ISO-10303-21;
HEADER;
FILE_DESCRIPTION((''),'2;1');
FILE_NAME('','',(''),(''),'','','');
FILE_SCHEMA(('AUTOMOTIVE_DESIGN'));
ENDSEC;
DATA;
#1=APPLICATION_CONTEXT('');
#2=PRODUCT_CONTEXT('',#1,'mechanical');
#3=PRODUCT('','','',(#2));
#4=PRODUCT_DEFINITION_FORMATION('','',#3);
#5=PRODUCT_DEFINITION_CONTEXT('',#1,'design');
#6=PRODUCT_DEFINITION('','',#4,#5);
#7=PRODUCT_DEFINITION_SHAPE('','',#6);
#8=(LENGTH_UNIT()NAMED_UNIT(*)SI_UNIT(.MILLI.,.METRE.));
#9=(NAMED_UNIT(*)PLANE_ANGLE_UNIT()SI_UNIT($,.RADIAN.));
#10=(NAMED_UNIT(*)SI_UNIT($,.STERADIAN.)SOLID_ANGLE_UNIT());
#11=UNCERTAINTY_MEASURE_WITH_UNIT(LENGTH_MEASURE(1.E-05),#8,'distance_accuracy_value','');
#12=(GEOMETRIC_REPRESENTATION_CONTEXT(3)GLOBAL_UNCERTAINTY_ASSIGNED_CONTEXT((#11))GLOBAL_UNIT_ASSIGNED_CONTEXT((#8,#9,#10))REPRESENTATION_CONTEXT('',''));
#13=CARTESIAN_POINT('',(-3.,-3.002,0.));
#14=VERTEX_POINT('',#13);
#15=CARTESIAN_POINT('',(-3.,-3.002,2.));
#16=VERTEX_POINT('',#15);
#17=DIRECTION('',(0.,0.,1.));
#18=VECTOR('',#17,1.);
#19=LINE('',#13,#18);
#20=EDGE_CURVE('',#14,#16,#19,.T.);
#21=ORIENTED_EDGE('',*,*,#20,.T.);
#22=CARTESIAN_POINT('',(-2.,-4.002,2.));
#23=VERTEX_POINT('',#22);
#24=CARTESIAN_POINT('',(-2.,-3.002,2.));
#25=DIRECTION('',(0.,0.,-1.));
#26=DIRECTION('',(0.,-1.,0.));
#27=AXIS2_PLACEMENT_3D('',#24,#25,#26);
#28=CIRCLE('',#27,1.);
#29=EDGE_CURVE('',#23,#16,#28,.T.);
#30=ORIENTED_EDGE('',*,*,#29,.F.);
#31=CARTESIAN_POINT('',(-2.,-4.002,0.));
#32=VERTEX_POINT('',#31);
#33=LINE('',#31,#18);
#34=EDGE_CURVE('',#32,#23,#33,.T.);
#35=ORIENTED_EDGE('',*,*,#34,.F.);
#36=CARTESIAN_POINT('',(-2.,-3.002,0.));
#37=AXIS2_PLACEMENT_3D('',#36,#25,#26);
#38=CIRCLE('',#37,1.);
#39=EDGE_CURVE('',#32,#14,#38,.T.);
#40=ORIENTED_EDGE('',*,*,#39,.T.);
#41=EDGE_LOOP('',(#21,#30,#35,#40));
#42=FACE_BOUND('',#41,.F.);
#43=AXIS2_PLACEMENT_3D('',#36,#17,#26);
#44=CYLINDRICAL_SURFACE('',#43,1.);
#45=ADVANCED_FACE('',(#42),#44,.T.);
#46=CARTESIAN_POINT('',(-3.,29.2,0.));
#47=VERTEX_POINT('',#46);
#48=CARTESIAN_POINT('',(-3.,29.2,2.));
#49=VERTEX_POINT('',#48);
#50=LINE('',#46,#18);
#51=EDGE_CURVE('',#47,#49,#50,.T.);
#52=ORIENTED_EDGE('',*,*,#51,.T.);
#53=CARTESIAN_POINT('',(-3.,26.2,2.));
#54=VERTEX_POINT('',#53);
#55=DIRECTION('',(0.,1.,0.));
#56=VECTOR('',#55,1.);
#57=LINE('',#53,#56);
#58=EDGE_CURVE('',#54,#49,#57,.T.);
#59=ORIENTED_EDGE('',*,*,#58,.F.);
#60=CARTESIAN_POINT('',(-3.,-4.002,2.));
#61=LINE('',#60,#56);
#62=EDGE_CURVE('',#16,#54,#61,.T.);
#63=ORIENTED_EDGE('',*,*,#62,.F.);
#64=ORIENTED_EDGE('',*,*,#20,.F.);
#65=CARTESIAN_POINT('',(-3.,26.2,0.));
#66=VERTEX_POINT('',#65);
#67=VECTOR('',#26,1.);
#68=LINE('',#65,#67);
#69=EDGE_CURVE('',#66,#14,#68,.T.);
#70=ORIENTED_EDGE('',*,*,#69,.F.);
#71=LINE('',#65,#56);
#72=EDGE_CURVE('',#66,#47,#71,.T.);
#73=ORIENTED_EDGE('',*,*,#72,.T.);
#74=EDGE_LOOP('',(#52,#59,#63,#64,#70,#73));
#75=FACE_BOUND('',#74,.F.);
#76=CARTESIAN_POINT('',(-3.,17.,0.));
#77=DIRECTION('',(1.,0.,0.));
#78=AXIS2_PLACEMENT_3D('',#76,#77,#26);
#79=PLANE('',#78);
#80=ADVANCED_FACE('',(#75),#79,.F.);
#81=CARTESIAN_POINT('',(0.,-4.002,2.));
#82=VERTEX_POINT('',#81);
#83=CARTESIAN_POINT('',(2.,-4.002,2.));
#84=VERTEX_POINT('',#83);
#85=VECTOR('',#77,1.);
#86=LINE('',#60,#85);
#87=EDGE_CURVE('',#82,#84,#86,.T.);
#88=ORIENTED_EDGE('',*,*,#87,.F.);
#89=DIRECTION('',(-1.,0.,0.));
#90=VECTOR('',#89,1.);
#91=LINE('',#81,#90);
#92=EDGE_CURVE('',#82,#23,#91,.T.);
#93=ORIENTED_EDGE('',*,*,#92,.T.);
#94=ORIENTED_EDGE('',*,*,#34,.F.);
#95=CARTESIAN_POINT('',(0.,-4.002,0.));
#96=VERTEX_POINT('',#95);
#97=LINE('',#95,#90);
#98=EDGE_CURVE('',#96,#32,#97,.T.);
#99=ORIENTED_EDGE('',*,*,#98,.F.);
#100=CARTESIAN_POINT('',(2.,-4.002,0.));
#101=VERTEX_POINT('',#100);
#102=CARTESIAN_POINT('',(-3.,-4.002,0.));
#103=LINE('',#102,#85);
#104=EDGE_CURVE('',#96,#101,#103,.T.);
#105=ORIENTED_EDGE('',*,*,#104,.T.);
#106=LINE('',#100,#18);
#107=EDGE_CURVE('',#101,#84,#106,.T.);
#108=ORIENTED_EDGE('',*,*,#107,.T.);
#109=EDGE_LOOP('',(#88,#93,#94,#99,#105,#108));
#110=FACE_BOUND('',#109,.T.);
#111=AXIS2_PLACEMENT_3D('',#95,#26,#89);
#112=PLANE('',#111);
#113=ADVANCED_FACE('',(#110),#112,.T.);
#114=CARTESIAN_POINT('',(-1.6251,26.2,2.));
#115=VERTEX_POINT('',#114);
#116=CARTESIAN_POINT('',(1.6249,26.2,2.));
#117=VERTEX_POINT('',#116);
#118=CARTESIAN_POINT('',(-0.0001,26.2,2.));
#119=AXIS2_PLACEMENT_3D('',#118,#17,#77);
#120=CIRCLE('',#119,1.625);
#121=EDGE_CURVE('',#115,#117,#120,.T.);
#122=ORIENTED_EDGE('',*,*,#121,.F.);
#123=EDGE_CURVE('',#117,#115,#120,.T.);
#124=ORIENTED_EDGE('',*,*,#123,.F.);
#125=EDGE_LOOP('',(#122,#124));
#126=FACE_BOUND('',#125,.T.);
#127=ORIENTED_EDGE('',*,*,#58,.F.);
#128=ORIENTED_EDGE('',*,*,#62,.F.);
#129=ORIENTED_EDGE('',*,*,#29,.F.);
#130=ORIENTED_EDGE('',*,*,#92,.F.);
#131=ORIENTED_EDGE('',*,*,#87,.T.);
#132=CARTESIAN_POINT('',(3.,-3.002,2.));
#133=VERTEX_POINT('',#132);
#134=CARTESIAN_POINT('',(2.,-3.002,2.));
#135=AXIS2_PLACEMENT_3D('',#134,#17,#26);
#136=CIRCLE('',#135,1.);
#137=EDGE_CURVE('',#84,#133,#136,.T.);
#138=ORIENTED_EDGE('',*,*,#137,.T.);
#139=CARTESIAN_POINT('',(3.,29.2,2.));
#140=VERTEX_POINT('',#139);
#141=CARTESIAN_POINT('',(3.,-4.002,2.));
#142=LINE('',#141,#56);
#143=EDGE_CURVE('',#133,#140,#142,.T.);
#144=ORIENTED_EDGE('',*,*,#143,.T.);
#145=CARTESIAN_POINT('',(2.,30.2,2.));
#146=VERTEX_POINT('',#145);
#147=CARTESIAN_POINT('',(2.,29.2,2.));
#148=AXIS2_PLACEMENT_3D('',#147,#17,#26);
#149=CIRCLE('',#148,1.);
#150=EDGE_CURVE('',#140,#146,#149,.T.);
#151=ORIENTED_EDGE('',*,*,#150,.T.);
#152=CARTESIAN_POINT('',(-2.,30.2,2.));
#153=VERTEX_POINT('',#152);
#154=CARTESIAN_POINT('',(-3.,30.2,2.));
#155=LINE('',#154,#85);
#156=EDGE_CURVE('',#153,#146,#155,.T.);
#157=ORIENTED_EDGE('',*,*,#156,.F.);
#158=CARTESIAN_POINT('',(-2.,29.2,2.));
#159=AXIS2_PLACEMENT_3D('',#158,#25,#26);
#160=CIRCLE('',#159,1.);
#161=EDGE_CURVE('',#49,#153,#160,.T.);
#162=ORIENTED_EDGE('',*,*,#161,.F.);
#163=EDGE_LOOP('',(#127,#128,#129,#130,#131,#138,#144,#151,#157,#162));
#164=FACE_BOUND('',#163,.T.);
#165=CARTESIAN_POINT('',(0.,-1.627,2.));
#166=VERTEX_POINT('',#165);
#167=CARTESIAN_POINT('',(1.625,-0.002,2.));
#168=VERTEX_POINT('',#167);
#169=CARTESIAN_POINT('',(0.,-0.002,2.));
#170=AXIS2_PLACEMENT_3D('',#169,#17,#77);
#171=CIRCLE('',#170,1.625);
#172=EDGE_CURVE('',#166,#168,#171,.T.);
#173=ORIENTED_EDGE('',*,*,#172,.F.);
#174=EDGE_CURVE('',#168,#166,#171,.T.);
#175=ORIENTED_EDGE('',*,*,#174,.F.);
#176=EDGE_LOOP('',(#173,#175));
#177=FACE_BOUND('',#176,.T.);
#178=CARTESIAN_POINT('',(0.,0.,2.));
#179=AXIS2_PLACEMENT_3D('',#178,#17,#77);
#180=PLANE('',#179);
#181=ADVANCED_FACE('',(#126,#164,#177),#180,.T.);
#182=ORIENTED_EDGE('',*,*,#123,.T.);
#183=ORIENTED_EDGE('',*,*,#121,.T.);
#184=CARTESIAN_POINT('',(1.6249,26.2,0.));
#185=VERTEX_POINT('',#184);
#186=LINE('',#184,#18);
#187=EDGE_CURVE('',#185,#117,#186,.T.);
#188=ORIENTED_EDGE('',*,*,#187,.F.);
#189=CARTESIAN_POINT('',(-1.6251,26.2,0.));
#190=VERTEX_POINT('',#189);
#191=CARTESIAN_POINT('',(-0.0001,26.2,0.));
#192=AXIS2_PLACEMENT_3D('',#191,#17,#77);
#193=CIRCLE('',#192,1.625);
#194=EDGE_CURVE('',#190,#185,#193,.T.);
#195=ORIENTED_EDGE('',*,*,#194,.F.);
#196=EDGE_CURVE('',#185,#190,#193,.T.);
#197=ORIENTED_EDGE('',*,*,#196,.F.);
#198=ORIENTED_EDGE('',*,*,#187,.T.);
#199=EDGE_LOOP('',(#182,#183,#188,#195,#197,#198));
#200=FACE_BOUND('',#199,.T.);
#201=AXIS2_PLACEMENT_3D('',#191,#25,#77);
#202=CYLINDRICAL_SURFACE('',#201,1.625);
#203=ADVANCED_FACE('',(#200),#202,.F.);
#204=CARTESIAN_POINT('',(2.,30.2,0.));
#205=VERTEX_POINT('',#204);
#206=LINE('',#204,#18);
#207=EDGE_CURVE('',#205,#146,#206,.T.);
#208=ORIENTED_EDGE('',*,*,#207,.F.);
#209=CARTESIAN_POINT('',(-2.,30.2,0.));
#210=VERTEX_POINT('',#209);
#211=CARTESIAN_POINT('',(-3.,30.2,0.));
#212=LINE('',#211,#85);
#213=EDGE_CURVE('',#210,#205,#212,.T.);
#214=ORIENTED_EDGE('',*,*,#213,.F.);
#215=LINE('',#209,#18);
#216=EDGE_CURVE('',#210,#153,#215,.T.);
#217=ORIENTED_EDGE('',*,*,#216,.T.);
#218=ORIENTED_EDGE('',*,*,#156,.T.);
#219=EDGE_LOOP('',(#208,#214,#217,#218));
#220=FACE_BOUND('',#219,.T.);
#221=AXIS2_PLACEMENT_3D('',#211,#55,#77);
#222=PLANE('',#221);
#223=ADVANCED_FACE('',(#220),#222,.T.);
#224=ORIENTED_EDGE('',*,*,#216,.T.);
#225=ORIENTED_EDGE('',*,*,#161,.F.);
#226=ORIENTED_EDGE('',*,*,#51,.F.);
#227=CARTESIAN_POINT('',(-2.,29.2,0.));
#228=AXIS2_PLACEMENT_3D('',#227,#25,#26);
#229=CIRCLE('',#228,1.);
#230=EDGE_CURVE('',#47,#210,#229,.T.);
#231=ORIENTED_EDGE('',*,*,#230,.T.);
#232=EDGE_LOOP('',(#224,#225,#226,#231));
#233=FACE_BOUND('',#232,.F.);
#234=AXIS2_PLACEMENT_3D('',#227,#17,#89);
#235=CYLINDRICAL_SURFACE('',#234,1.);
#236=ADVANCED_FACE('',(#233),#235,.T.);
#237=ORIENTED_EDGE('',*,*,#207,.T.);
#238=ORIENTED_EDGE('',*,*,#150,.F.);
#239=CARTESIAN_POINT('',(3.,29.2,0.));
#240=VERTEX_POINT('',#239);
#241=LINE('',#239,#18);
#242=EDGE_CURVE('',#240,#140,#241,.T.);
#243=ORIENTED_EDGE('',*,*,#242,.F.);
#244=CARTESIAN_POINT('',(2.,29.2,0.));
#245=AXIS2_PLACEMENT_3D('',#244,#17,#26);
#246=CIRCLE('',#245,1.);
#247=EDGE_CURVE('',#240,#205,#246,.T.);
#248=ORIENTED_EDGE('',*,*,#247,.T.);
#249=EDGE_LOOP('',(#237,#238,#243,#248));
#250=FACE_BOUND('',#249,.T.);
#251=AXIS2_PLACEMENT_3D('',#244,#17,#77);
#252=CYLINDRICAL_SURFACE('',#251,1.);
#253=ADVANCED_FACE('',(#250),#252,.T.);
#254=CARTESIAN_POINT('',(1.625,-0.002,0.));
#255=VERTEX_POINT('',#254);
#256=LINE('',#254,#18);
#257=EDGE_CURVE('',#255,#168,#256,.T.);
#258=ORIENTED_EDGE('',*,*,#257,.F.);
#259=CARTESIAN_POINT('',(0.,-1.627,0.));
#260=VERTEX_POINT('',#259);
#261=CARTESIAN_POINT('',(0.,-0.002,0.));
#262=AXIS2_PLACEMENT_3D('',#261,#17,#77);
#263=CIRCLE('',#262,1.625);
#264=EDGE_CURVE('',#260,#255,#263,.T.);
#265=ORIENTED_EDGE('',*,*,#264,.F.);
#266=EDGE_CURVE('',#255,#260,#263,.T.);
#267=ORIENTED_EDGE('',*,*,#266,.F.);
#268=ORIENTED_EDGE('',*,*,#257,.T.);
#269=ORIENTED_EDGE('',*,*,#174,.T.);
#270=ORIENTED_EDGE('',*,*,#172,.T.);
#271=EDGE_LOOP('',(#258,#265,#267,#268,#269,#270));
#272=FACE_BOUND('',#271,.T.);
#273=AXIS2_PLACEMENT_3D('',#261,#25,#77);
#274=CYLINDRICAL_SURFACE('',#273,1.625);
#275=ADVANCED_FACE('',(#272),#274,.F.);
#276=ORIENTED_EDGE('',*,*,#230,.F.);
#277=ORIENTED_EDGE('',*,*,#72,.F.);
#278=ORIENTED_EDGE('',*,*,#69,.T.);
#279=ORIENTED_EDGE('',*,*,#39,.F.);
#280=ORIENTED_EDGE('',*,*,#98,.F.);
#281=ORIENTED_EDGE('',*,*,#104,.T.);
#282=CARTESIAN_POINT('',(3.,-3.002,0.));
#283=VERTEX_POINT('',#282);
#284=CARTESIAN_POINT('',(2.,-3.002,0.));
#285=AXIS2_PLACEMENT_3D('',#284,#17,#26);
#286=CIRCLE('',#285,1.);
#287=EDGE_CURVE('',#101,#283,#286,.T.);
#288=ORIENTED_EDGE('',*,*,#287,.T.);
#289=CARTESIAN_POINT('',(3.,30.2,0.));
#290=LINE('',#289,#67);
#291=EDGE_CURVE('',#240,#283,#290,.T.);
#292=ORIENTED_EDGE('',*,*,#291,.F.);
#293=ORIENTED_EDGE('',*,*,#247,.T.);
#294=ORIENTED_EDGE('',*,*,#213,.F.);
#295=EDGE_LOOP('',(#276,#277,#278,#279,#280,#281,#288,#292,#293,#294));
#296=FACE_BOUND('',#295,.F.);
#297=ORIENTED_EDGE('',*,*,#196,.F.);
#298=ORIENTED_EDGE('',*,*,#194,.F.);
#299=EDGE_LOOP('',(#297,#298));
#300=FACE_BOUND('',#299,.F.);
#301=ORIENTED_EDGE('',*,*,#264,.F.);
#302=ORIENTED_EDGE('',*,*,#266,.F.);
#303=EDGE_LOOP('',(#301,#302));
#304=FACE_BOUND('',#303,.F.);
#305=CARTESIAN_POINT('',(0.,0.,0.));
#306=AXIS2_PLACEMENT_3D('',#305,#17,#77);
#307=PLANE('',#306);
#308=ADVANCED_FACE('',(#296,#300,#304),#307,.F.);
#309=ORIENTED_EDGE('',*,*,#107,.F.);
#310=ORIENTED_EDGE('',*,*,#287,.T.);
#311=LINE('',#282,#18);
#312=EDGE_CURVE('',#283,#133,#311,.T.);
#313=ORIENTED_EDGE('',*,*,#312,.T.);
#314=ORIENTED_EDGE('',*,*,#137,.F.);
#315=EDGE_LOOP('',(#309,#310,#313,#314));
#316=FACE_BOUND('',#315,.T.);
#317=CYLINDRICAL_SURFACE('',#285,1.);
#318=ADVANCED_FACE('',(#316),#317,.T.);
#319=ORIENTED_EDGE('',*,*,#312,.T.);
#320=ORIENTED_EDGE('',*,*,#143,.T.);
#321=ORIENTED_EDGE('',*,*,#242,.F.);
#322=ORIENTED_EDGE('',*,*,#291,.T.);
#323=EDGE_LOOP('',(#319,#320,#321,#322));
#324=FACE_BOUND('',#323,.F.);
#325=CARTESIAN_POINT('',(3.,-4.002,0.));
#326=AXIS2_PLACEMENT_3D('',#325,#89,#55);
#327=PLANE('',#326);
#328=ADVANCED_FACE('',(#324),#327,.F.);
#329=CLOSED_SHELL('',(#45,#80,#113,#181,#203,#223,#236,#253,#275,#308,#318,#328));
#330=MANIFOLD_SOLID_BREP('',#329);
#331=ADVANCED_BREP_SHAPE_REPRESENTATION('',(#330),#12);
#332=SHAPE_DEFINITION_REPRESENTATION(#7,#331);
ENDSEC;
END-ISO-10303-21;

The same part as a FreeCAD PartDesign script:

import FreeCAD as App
import Part
import Sketcher
from FreeCAD import Vector
Q = App.Units.Quantity


def edges_at(feature, points):
    """Names of the edges that pass closest to the given points."""
    edges = feature.Shape.Edges
    near = lambda p: min(range(len(edges)), key=lambda i: edges[i].distToShape(Part.Vertex(*p))[0])
    return sorted({f"Edge{near(p) + 1}" for p in points})


def add_polygon(sketch, points):
    """Adds a closed chain of lines whose ends are joined by coincident constraints."""
    first, n = sketch.GeometryCount, len(points)
    for a, b in zip(points, points[1:] + points[:1]):
        sketch.addGeometry(Part.LineSegment(App.Vector(*a, 0), App.Vector(*b, 0)), False)
    for i in range(n):
        sketch.addConstraint(Sketcher.Constraint("Coincident", first + i, 2, first + (i + 1) % n, 1))

doc = App.newDocument("Part")
body = doc.addObject("PartDesign::Body", "Body")

# Sketch on XY plane
sketch1 = body.newObject("Sketcher::SketchObject", "Sketch")
sketch1.AttachmentSupport = (doc.getObject("XY_Plane"), [""])
sketch1.MapMode = "FlatFace"
add_polygon(sketch1, [(-3, -4), (0, -4), (3, -4), (3, 30.2), (-3, 30.2), (-3, 26.2)])  # lines 0-5
sketch1.addGeometry(Part.Circle(Vector(0, 0, 0), Vector(0, 0, 1), 1.6), False)  # 6
sketch1.addGeometry(Part.Circle(Vector(0, 26.2, 0), Vector(0, 0, 1), 1.6), False)  # 7
sketch1.addConstraint(Sketcher.Constraint("Horizontal", 0))
sketch1.addConstraint(Sketcher.Constraint("Horizontal", 1))
sketch1.addConstraint(Sketcher.Constraint("Vertical", 2))
sketch1.addConstraint(Sketcher.Constraint("Horizontal", 3))
sketch1.addConstraint(Sketcher.Constraint("Vertical", 4))
sketch1.addConstraint(Sketcher.Constraint("Vertical", 5))
sketch1.addConstraint(Sketcher.Constraint("Equal", 6, 7))
sketch1.addConstraint(Sketcher.Constraint("PointOnObject", 6, 3, -2))
sketch1.addConstraint(Sketcher.Constraint("PointOnObject", 7, 3, -2))
sketch1.addConstraint(Sketcher.Constraint("PointOnObject", 0, 2, -2))
sketch1.addConstraint(Sketcher.Constraint("Horizontal", 7, 3, 4, 2))
sketch1.addConstraint(Sketcher.Constraint("Equal", 0, 1))
sketch1.addConstraint(Sketcher.Constraint("Diameter", 6, Q("3.25 mm")))
sketch1.addConstraint(Sketcher.Constraint("DistanceX", 0, 1, 0, 2, Q("3 mm")))
sketch1.addConstraint(Sketcher.Constraint("DistanceY", 4, 2, 4, 1, Q("4 mm")))
sketch1.addConstraint(Sketcher.Constraint("DistanceY", 0, 2, 6, 3, Q("4 mm")))
sketch1.addConstraint(Sketcher.Constraint("DistanceY", -1, 1, 7, 3, Q("26.2 mm")))
sketch1.addConstraint(Sketcher.Constraint("DistanceY", 2, 1, 2, 2, Q("34.202 mm")))
pad1 = body.newObject("PartDesign::Pad", "Pad")
pad1.Profile = sketch1
pad1.Length = 2
doc.recompute()

fillet = body.newObject("PartDesign::Fillet", "Fillet")
fillet.Base = (pad1, edges_at(pad1, [
    (-3, -4.002, 1),
    (3, -4.002, 1),
    (3, 30.2, 1),
    (-3, 30.2, 1),
]))
fillet.Radius = 1

doc.recompute()
